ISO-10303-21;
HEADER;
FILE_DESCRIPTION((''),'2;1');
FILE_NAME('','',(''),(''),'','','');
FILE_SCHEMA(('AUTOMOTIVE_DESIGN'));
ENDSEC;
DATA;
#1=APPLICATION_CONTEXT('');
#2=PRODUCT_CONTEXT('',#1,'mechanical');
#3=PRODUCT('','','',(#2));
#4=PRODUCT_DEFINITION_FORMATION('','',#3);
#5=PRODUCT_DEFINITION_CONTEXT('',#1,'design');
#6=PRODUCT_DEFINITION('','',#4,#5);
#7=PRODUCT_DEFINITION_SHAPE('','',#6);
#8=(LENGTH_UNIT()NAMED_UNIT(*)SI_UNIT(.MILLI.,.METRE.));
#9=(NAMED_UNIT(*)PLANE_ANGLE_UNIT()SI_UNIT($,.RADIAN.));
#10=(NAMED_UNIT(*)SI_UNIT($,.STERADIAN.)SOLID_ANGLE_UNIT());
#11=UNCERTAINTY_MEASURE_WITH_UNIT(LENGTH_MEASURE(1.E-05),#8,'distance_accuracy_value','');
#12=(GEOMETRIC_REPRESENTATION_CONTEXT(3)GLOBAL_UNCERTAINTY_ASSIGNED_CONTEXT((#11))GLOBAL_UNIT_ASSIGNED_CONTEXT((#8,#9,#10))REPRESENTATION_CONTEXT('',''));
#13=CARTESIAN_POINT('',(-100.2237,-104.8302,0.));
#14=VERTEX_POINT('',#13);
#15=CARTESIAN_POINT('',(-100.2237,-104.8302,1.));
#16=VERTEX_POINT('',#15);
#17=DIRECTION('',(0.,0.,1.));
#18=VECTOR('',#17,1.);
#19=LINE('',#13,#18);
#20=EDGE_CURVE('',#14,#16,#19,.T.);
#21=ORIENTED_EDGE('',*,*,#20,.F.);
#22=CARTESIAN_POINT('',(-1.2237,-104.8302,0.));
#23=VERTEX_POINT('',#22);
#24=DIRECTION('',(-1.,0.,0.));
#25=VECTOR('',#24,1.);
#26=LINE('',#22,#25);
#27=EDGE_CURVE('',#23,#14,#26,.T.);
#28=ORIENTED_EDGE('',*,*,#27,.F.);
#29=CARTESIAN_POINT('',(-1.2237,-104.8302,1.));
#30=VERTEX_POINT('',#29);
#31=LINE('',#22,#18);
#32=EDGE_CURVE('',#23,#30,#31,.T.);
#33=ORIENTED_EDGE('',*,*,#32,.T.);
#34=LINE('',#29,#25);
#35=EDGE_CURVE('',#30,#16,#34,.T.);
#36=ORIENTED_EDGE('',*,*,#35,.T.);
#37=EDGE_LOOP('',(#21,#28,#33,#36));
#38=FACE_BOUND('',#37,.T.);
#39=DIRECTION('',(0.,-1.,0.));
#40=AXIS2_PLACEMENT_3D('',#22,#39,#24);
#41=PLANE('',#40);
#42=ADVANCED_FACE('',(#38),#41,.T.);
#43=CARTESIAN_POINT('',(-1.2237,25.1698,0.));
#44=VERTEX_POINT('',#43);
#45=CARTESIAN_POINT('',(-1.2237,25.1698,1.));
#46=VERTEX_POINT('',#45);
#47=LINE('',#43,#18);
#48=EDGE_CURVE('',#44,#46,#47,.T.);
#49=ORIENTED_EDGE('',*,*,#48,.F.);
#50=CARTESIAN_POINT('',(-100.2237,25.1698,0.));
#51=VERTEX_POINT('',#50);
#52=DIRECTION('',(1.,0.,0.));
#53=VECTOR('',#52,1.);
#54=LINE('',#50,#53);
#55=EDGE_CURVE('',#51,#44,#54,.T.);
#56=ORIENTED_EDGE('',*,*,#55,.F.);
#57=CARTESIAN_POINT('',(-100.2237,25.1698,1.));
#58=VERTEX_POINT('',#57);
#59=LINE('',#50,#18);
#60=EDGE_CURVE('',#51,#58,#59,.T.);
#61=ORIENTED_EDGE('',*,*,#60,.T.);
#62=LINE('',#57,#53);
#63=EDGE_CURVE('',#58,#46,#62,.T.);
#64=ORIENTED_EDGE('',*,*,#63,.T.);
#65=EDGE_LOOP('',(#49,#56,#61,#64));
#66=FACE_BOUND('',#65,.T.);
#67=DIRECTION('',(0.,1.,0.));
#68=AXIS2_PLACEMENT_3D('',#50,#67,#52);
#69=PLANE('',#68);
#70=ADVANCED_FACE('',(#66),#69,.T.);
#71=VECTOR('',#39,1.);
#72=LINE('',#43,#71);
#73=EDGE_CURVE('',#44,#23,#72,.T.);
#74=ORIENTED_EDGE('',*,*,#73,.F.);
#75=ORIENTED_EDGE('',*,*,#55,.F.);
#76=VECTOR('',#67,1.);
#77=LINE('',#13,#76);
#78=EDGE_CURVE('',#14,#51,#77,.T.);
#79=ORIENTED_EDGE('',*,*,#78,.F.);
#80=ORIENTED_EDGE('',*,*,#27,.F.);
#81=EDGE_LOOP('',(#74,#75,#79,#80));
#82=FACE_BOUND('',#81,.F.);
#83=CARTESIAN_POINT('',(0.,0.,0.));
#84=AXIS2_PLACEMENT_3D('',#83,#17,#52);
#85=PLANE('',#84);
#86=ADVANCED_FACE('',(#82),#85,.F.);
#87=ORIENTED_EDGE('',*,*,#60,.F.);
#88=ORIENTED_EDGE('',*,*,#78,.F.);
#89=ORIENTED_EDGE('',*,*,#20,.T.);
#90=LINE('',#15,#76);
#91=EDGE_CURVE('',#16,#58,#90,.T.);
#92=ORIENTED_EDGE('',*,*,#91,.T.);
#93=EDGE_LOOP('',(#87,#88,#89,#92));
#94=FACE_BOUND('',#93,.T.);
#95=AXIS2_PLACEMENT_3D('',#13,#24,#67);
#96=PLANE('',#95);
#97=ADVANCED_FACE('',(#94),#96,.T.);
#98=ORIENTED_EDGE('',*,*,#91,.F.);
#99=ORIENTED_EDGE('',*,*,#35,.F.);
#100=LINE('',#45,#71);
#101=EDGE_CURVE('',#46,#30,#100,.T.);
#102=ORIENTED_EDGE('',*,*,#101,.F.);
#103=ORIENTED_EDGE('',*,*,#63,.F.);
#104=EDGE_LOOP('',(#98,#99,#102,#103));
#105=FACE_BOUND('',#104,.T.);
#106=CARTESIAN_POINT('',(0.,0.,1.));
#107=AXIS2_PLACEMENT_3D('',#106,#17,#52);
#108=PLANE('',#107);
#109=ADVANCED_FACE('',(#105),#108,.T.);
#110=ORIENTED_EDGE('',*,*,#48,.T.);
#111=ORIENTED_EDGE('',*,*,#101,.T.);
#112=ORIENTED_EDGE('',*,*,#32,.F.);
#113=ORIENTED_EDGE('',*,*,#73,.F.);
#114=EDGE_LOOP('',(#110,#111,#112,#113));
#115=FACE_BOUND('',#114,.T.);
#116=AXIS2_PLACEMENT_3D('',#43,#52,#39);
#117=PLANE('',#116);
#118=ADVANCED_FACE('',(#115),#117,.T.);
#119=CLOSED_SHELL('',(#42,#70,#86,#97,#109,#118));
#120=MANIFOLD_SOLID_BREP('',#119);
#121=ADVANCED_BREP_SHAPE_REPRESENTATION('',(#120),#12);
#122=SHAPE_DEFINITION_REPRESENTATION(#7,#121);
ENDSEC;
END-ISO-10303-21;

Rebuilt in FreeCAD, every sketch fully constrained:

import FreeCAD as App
import Part
import Sketcher


def add_polygon(sketch, points):
    """Adds a closed chain of lines whose ends are joined by coincident constraints."""
    first, n = sketch.GeometryCount, len(points)
    for a, b in zip(points, points[1:] + points[:1]):
        sketch.addGeometry(Part.LineSegment(App.Vector(*a, 0), App.Vector(*b, 0)), False)
    for i in range(n):
        sketch.addConstraint(Sketcher.Constraint("Coincident", first + i, 2, first + (i + 1) % n, 1))

doc = App.newDocument("Part")
body = doc.addObject("PartDesign::Body", "Body")

# Sketch on XY plane
sketch1 = body.newObject("Sketcher::SketchObject", "Sketch")
sketch1.AttachmentSupport = (doc.getObject("XY_Plane"), [""])
sketch1.MapMode = "FlatFace"
add_polygon(sketch1, [(-1, 25), (-100, 25), (-100, -105), (-1, -105)])  # lines 0-3
sketch1.addConstraint([
    Sketcher.Constraint("Horizontal", 0),
    Sketcher.Constraint("Vertical", 1),
    Sketcher.Constraint("Horizontal", 2),
    Sketcher.Constraint("Vertical", 3),
    Sketcher.Constraint("DistanceX", 0, 2, 0, 1, 99.0),
    Sketcher.Constraint("DistanceY", 1, 2, 1, 1, 130.0),
    Sketcher.Constraint("DistanceX", 0, 2, -1, 1, 100.2237),
    Sketcher.Constraint("DistanceY", -1, 1, 0, 2, 25.1698),
])
pad1 = body.newObject("PartDesign::Pad", "Pad")
pad1.Profile = sketch1
pad1.Length = 1

doc.recompute()
